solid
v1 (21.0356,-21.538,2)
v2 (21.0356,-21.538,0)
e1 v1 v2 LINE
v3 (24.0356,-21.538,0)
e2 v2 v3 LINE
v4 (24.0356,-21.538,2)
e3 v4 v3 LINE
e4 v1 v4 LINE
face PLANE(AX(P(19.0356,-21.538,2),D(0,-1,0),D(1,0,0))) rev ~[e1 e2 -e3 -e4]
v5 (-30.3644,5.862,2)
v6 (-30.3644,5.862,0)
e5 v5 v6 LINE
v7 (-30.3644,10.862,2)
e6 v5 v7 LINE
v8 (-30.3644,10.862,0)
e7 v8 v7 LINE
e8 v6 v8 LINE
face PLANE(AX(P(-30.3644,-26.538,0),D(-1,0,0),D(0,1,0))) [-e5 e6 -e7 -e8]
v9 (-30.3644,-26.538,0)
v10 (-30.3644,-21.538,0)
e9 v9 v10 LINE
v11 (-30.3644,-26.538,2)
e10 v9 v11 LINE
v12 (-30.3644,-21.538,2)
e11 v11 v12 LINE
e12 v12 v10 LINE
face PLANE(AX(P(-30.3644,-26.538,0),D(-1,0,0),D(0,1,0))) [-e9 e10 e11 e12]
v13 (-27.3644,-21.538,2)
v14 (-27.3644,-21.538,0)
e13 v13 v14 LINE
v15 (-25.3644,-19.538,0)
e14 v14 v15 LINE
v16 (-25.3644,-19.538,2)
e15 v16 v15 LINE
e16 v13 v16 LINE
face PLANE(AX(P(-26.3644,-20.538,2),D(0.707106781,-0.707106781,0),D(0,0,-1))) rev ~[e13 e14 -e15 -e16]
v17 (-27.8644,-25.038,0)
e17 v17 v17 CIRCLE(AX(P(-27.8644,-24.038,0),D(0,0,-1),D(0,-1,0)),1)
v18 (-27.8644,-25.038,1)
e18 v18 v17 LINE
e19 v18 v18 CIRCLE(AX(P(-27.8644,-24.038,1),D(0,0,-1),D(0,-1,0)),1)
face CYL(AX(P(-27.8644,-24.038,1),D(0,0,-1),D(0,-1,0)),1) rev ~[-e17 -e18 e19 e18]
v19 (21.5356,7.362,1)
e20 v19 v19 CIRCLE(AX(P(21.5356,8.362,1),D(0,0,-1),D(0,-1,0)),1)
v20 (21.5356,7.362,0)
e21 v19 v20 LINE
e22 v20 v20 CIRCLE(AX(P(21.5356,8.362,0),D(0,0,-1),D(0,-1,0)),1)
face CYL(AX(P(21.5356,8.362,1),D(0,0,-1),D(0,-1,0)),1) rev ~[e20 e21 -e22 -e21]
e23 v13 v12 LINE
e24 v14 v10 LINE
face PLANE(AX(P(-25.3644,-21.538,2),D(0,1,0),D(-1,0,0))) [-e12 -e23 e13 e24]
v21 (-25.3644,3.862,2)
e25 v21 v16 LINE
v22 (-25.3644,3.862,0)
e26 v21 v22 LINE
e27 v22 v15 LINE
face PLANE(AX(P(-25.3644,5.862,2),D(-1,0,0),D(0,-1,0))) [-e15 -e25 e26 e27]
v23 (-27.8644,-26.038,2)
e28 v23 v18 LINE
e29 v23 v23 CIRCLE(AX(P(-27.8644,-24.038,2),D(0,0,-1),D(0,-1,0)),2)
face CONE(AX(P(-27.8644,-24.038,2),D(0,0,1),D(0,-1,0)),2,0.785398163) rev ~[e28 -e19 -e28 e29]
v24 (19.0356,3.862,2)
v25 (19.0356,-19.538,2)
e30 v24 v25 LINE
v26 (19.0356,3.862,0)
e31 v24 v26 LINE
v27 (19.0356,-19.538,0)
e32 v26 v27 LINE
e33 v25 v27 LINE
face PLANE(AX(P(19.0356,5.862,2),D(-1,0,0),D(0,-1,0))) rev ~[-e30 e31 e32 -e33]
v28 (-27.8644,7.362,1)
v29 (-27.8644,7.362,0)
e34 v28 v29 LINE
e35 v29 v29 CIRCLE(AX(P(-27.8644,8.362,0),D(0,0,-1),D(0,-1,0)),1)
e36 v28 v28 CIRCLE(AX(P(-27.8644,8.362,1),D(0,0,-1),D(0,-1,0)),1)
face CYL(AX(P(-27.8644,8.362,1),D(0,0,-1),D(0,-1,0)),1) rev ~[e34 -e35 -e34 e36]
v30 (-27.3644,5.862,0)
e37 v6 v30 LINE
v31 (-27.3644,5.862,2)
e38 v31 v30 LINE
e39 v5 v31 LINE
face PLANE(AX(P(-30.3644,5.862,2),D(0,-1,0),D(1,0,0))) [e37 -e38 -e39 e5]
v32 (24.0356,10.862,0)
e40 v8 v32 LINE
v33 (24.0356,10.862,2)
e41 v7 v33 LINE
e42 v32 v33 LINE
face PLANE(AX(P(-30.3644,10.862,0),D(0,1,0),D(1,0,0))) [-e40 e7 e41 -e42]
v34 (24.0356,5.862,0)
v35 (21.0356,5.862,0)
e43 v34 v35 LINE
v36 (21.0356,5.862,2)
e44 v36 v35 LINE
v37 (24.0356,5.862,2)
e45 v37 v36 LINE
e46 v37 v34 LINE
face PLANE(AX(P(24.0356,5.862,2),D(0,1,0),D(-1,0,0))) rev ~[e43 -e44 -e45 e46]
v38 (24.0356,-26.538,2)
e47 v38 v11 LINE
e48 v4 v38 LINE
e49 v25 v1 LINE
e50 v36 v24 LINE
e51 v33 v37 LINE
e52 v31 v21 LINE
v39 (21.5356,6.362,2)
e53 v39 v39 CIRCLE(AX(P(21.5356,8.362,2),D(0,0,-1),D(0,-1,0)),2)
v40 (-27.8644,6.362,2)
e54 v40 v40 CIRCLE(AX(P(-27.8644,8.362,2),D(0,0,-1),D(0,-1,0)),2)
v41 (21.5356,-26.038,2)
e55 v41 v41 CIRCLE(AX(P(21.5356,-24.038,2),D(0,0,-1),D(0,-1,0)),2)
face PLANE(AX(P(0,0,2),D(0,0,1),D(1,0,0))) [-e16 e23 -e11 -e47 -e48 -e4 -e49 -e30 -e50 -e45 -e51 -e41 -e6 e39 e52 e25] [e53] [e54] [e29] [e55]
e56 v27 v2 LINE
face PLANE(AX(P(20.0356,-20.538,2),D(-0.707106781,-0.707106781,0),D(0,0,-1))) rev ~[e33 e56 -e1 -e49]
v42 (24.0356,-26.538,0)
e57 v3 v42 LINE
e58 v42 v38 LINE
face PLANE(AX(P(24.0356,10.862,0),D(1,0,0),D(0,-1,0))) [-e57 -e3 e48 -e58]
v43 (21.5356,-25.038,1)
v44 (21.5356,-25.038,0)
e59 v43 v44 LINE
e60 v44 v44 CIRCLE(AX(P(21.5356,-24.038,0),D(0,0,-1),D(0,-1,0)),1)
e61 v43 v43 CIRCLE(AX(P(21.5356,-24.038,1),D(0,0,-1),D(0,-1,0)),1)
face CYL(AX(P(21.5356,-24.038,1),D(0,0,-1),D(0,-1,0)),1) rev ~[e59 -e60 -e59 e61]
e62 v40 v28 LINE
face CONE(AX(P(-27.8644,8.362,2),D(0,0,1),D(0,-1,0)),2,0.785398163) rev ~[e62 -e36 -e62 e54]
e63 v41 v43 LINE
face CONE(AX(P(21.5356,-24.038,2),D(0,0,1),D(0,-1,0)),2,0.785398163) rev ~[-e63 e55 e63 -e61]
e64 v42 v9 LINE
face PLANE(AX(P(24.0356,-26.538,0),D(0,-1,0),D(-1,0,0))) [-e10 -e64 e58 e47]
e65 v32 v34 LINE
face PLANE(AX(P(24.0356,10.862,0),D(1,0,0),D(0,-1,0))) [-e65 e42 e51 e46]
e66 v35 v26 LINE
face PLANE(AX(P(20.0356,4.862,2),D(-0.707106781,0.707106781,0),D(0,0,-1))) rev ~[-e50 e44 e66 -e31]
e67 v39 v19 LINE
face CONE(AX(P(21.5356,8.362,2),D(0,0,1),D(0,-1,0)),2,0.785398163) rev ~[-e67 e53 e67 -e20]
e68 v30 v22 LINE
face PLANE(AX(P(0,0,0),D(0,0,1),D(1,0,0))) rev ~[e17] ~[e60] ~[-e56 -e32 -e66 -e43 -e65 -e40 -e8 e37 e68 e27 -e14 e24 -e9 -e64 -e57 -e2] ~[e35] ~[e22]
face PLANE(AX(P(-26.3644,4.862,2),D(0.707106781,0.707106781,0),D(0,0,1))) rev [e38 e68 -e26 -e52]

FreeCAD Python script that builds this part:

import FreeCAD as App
import Part
import Sketcher
from FreeCAD import Vector
Q = App.Units.Quantity


def edges_at(feature, points):
    """Names of the edges that pass closest to the given points."""
    edges = feature.Shape.Edges
    near = lambda p: min(range(len(edges)), key=lambda i: edges[i].distToShape(Part.Vertex(*p))[0])
    return sorted({f"Edge{near(p) + 1}" for p in points})

doc = App.newDocument("Part")
body = doc.addObject("PartDesign::Body", "Body")

# Sketch on XY plane
sketch1 = doc.addObject("Sketcher::SketchObject", "Sketch")
body.addObject(sketch1)
sketch1.AttachmentSupport = (doc.XY_Plane, [""])
sketch1.MapMode = "FlatFace"
sketch1.addGeometry([
    Part.LineSegment(Vector(24, 11, 0), Vector(-30, 11, 0)),
    Part.LineSegment(Vector(-30, 11, 0), Vector(-30, -27, 0)),
    Part.LineSegment(Vector(-30, -27, 0), Vector(24, -27, 0)),
    Part.LineSegment(Vector(24, -27, 0), Vector(24, 11, 0)),
], False)
sketch1.addConstraint([
    Sketcher.Constraint("Coincident", 0, 2, 1, 1),
    Sketcher.Constraint("Coincident", 1, 2, 2, 1),
    Sketcher.Constraint("Coincident", 2, 2, 3, 1),
    Sketcher.Constraint("Coincident", 3, 2, 0, 1),
    Sketcher.Constraint("Horizontal", 0),
    Sketcher.Constraint("Vertical", 1),
    Sketcher.Constraint("Horizontal", 2),
    Sketcher.Constraint("Vertical", 3),
    Sketcher.Constraint("DistanceX", 0, 2, 0, 1, Q("54.4 mm")),
    Sketcher.Constraint("DistanceY", 1, 2, 1, 1, Q("37.4 mm")),
    Sketcher.Constraint("DistanceY", -1, 1, 0, 2, Q("10.862 mm")),
    Sketcher.Constraint("DistanceX", 0, 2, -1, 1, Q("30.3644 mm")),
])
pad1 = doc.addObject("PartDesign::Pad", "Pad")
body.addObject(pad1)
pad1.Profile = sketch1
pad1.Length = 2

# Sketch on XY plane
sketch2 = doc.addObject("Sketcher::SketchObject", "Sketch001")
body.addObject(sketch2)
sketch2.AttachmentSupport = (doc.XY_Plane, [""])
sketch2.MapMode = "FlatFace"
sketch2.AttachmentOffset = App.Placement(Vector(0, 0, 2), App.Rotation())
sketch2.addGeometry([
    Part.Circle(Vector(-27.9, 8.4, 0), Vector(0, 0, 1), 1),
    Part.Circle(Vector(21.5, -24, 0), Vector(0, 0, 1), 1),
    Part.Circle(Vector(21.5, 8.4, 0), Vector(0, 0, 1), 1),
    Part.Circle(Vector(-27.9, -24, 0), Vector(0, 0, 1), 1),
], False)
sketch2.addConstraint([
    Sketcher.Constraint("Equal", 0, 1),
    Sketcher.Constraint("Equal", 1, 2),
    Sketcher.Constraint("Equal", 2, 3),
    Sketcher.Constraint("Horizontal", 0, 3, 2, 3),
    Sketcher.Constraint("Horizontal", 1, 3, 3, 3),
    Sketcher.Constraint("Vertical", 1, 3, 2, 3),
    Sketcher.Constraint("Vertical", 0, 3, 3, 3),
    Sketcher.Constraint("Diameter", 0, Q("2 mm")),
    Sketcher.Constraint("DistanceX", 0, 3, 1, 3, Q("49.4 mm")),
    Sketcher.Constraint("DistanceY", 1, 3, 0, 3, Q("32.4 mm")),
    Sketcher.Constraint("DistanceY", -1, 1, 0, 3, Q("8.362 mm")),
    Sketcher.Constraint("DistanceX", 0, 3, -1, 1, Q("27.8644 mm")),
])
doc.recompute()
hole = doc.addObject("PartDesign::Hole", "Hole")
body.addObject(hole)
hole.Profile = sketch2
hole.ThreadType = "None"
hole.Diameter = 2
hole.DepthType = "Dimension"
hole.Depth = 8
hole.DrillPoint = "Angled"
hole.DrillPointAngle = 118
hole.HoleCutType = "Countersink"
hole.HoleCutDiameter = 4
hole.HoleCutCountersinkAngle = 90

# Sketch on XY plane
sketch3 = doc.addObject("Sketcher::SketchObject", "Sketch002")
body.addObject(sketch3)
sketch3.AttachmentSupport = (doc.XY_Plane, [""])
sketch3.MapMode = "FlatFace"
sketch3.AttachmentOffset = App.Placement(Vector(0, 0, 2), App.Rotation())
sketch3.addGeometry([
    Part.LineSegment(Vector(-30, 6, 0), Vector(-30, -22, 0)),  # 0
    Part.LineSegment(Vector(-30, -22, 0), Vector(-25, -22, 0)),  # 1
    Part.LineSegment(Vector(-25, -22, 0), Vector(-25, 6, 0)),  # 2
    Part.LineSegment(Vector(-25, 6, 0), Vector(-30, 6, 0)),  # 3
    Part.LineSegment(Vector(19, -22, 0), Vector(24, -22, 0)),  # 4
    Part.LineSegment(Vector(24, -22, 0), Vector(24, 6, 0)),  # 5
    Part.LineSegment(Vector(24, 6, 0), Vector(19, 6, 0)),  # 6
    Part.LineSegment(Vector(19, 6, 0), Vector(19, -22, 0)),  # 7
], False)
sketch3.addConstraint([
    Sketcher.Constraint("Coincident", 0, 2, 1, 1),
    Sketcher.Constraint("Coincident", 1, 2, 2, 1),
    Sketcher.Constraint("Coincident", 2, 2, 3, 1),
    Sketcher.Constraint("Coincident", 3, 2, 0, 1),
    Sketcher.Constraint("Coincident", 4, 2, 5, 1),
    Sketcher.Constraint("Coincident", 5, 2, 6, 1),
    Sketcher.Constraint("Coincident", 6, 2, 7, 1),
    Sketcher.Constraint("Coincident", 7, 2, 4, 1),
    Sketcher.Constraint("Vertical", 0),
    Sketcher.Constraint("Horizontal", 1),
    Sketcher.Constraint("Vertical", 2),
    Sketcher.Constraint("Horizontal", 3),
    Sketcher.Constraint("Horizontal", 4),
    Sketcher.Constraint("Vertical", 5),
    Sketcher.Constraint("Horizontal", 6),
    Sketcher.Constraint("Vertical", 7),
    Sketcher.Constraint("Horizontal", 1, 2, 4, 2),
    Sketcher.Constraint("Horizontal", 3, 2, 5, 2),
    Sketcher.Constraint("Equal", 3, 4),
    Sketcher.Constraint("DistanceX", 1, 1, 1, 2, Q("5 mm")),
    Sketcher.Constraint("DistanceY", 0, 2, 0, 1, Q("27.4 mm")),
    Sketcher.Constraint("DistanceX", 1, 2, 4, 2, Q("49.4 mm")),
    Sketcher.Constraint("DistanceY", 0, 2, -1, 1, Q("21.538 mm")),
    Sketcher.Constraint("DistanceX", 0, 2, -1, 1, Q("30.3644 mm")),
])
pocket1 = doc.addObject("PartDesign::Pocket", "Pocket")
body.addObject(pocket1)
pocket1.Profile = sketch3
pocket1.Length = 2
doc.recompute()

chamfer = doc.addObject("PartDesign::Chamfer", "Chamfer")
body.addObject(chamfer)
chamfer.Base = (pocket1, edges_at(pocket1, [
    (-25.364, 5.862, 1),
    (-25.364, -21.538, 1),
    (19.036, -21.538, 1),
    (19.036, 5.862, 1),
]))
chamfer.Size = 2

doc.recompute()
